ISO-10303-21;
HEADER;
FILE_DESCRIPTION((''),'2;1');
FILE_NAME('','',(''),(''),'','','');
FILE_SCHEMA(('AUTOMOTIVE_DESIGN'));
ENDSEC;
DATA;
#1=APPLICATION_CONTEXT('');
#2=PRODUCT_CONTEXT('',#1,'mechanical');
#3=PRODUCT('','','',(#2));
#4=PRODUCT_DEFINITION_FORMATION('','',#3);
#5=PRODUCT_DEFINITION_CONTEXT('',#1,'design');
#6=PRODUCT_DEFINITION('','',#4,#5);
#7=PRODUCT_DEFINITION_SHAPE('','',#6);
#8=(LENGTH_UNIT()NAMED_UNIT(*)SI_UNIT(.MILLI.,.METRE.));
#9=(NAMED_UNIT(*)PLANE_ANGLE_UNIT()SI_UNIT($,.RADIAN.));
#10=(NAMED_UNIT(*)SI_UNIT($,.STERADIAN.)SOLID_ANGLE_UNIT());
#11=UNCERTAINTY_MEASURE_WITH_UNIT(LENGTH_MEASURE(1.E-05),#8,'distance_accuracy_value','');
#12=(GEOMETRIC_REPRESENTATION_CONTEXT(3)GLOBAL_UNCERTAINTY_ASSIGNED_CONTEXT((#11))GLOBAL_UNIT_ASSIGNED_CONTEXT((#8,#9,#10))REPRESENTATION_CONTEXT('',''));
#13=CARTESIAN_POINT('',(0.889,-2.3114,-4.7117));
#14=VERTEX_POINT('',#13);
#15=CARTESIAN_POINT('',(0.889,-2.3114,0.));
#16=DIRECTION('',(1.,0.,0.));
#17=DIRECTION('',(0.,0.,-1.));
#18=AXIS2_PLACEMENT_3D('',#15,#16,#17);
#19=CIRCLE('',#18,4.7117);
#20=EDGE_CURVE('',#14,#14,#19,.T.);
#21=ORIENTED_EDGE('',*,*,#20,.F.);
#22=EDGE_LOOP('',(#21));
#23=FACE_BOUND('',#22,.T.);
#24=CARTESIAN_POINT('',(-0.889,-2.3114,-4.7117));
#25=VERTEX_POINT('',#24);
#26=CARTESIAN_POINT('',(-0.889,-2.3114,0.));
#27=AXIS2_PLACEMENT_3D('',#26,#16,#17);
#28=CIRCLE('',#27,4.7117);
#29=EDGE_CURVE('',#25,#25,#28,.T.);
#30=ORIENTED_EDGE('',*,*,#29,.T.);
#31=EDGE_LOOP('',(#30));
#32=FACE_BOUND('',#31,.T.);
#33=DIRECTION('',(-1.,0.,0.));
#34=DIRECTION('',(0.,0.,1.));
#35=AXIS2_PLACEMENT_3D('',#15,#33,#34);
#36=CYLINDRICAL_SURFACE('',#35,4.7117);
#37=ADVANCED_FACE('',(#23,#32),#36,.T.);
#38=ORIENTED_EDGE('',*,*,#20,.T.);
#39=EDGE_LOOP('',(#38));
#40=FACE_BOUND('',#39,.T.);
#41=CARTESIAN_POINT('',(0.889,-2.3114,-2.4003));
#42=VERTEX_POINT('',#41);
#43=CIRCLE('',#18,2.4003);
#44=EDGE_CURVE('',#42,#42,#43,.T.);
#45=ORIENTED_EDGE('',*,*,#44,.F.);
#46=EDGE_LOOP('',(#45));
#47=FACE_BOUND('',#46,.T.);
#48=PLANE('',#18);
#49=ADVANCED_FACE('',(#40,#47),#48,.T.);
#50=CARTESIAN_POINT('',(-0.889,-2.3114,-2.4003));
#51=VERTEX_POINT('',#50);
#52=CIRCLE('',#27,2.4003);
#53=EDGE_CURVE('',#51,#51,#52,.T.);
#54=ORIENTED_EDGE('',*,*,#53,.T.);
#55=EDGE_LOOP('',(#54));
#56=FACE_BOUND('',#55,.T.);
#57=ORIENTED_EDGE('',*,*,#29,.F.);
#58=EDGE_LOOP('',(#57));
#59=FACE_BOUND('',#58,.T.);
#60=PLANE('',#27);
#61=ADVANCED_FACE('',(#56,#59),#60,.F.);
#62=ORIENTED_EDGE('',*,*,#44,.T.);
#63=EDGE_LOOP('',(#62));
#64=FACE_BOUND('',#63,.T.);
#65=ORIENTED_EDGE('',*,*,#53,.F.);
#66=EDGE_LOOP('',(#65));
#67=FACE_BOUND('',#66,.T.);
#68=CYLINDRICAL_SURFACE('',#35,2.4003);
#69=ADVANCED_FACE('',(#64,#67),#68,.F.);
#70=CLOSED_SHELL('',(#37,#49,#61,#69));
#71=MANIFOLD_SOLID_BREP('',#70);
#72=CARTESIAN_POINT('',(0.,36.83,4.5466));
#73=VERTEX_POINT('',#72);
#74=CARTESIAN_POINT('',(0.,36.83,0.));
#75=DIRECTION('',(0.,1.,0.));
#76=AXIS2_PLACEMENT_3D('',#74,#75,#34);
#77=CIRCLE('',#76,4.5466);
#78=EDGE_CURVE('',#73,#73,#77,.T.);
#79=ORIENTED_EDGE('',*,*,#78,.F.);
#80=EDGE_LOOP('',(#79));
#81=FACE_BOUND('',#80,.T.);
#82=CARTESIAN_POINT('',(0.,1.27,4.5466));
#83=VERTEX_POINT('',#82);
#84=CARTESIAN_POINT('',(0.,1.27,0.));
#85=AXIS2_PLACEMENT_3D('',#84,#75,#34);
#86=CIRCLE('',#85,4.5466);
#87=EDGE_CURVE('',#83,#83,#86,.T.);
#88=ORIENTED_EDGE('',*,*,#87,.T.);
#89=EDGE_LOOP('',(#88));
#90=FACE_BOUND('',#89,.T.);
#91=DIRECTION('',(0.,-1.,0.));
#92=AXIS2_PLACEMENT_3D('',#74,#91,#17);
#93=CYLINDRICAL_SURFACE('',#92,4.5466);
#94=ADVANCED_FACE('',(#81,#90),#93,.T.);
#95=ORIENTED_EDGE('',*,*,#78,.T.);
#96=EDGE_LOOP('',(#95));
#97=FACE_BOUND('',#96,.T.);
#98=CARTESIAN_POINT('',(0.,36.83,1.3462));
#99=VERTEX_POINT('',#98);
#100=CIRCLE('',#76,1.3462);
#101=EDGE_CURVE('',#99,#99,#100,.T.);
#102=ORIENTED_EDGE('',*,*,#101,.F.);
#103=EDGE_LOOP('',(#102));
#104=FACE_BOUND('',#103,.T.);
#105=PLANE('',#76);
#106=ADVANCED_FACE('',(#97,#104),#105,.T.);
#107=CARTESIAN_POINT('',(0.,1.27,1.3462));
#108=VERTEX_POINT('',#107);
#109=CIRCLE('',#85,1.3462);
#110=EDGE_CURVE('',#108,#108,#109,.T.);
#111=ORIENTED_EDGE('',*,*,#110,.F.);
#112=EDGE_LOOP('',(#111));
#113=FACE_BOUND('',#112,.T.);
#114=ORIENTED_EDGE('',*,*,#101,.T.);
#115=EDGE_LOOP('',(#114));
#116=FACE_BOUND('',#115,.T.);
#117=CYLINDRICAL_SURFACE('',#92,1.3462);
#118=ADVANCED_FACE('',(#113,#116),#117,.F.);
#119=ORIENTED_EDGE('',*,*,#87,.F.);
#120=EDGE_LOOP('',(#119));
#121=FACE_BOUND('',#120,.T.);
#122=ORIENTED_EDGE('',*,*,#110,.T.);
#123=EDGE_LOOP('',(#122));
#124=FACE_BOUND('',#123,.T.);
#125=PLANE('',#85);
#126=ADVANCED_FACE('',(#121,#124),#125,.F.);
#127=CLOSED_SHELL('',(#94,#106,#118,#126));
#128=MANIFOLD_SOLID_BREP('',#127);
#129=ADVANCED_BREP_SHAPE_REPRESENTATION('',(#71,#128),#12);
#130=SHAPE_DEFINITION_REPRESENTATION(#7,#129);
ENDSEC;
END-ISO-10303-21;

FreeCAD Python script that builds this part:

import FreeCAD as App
import Part
import Sketcher
from FreeCAD import Vector
Q = App.Units.Quantity

doc = App.newDocument("Part")
body = doc.addObject("PartDesign::Body", "Body")

sketch1 = body.newObject("Sketcher::SketchObject", "Sketch")
sketch1.AttachmentSupport = (doc.getObject("XZ_Plane"), [""])
sketch1.MapMode = "FlatFace"
sketch1.AttachmentOffset = App.Placement(Vector(0, 0, -0.05 * 25.4), App.Rotation())
sketch1.addGeometry([
    Part.Circle(Vector(0, 0, 0), Vector(0, 0, 1), 4.5),
    Part.Circle(Vector(0, 0, 0), Vector(0, 0, 1), 1.3),
], False)
sketch1.addConstraint([
    Sketcher.Constraint("Coincident", 0, 3, -1, 1),
    Sketcher.Constraint("Coincident", 1, 3, -1, 1),
    Sketcher.Constraint("Diameter", 0, Q("0.358 in")),
    Sketcher.Constraint("Diameter", 1, Q("0.106 in")),
])
pad1 = body.newObject("PartDesign::Pad", "Pad")
pad1.Profile = sketch1
pad1.Length = Q("1.4 in")
pad1.Reversed = True
body2 = doc.addObject("PartDesign::Body", "Body001")

sketch2 = body2.newObject("Sketcher::SketchObject", "Sketch001")
sketch2.AttachmentSupport = (doc.getObject("YZ_Plane001"), [""])
sketch2.MapMode = "FlatFace"
sketch2.addGeometry([
    Part.Circle(Vector(-2.3, 0, 0), Vector(0, 0, 1), 4.7),
    Part.Circle(Vector(-2.3, 0, 0), Vector(0, 0, 1), 2.4),
], False)
sketch2.addConstraint([
    Sketcher.Constraint("Coincident", 1, 3, 0, 3),
    Sketcher.Constraint("PointOnObject", 0, 3, -1),
    Sketcher.Constraint("Diameter", 0, Q("0.371 in")),
    Sketcher.Constraint("Diameter", 1, Q("0.189 in")),
    Sketcher.Constraint("DistanceX", 0, 3, -1, 1, Q("0.091 in")),
])
pad2 = body2.newObject("PartDesign::Pad", "Pad001")
pad2.Profile = sketch2
pad2.Length = Q("0.07 in")
pad2.Midplane = True

doc.recompute()
